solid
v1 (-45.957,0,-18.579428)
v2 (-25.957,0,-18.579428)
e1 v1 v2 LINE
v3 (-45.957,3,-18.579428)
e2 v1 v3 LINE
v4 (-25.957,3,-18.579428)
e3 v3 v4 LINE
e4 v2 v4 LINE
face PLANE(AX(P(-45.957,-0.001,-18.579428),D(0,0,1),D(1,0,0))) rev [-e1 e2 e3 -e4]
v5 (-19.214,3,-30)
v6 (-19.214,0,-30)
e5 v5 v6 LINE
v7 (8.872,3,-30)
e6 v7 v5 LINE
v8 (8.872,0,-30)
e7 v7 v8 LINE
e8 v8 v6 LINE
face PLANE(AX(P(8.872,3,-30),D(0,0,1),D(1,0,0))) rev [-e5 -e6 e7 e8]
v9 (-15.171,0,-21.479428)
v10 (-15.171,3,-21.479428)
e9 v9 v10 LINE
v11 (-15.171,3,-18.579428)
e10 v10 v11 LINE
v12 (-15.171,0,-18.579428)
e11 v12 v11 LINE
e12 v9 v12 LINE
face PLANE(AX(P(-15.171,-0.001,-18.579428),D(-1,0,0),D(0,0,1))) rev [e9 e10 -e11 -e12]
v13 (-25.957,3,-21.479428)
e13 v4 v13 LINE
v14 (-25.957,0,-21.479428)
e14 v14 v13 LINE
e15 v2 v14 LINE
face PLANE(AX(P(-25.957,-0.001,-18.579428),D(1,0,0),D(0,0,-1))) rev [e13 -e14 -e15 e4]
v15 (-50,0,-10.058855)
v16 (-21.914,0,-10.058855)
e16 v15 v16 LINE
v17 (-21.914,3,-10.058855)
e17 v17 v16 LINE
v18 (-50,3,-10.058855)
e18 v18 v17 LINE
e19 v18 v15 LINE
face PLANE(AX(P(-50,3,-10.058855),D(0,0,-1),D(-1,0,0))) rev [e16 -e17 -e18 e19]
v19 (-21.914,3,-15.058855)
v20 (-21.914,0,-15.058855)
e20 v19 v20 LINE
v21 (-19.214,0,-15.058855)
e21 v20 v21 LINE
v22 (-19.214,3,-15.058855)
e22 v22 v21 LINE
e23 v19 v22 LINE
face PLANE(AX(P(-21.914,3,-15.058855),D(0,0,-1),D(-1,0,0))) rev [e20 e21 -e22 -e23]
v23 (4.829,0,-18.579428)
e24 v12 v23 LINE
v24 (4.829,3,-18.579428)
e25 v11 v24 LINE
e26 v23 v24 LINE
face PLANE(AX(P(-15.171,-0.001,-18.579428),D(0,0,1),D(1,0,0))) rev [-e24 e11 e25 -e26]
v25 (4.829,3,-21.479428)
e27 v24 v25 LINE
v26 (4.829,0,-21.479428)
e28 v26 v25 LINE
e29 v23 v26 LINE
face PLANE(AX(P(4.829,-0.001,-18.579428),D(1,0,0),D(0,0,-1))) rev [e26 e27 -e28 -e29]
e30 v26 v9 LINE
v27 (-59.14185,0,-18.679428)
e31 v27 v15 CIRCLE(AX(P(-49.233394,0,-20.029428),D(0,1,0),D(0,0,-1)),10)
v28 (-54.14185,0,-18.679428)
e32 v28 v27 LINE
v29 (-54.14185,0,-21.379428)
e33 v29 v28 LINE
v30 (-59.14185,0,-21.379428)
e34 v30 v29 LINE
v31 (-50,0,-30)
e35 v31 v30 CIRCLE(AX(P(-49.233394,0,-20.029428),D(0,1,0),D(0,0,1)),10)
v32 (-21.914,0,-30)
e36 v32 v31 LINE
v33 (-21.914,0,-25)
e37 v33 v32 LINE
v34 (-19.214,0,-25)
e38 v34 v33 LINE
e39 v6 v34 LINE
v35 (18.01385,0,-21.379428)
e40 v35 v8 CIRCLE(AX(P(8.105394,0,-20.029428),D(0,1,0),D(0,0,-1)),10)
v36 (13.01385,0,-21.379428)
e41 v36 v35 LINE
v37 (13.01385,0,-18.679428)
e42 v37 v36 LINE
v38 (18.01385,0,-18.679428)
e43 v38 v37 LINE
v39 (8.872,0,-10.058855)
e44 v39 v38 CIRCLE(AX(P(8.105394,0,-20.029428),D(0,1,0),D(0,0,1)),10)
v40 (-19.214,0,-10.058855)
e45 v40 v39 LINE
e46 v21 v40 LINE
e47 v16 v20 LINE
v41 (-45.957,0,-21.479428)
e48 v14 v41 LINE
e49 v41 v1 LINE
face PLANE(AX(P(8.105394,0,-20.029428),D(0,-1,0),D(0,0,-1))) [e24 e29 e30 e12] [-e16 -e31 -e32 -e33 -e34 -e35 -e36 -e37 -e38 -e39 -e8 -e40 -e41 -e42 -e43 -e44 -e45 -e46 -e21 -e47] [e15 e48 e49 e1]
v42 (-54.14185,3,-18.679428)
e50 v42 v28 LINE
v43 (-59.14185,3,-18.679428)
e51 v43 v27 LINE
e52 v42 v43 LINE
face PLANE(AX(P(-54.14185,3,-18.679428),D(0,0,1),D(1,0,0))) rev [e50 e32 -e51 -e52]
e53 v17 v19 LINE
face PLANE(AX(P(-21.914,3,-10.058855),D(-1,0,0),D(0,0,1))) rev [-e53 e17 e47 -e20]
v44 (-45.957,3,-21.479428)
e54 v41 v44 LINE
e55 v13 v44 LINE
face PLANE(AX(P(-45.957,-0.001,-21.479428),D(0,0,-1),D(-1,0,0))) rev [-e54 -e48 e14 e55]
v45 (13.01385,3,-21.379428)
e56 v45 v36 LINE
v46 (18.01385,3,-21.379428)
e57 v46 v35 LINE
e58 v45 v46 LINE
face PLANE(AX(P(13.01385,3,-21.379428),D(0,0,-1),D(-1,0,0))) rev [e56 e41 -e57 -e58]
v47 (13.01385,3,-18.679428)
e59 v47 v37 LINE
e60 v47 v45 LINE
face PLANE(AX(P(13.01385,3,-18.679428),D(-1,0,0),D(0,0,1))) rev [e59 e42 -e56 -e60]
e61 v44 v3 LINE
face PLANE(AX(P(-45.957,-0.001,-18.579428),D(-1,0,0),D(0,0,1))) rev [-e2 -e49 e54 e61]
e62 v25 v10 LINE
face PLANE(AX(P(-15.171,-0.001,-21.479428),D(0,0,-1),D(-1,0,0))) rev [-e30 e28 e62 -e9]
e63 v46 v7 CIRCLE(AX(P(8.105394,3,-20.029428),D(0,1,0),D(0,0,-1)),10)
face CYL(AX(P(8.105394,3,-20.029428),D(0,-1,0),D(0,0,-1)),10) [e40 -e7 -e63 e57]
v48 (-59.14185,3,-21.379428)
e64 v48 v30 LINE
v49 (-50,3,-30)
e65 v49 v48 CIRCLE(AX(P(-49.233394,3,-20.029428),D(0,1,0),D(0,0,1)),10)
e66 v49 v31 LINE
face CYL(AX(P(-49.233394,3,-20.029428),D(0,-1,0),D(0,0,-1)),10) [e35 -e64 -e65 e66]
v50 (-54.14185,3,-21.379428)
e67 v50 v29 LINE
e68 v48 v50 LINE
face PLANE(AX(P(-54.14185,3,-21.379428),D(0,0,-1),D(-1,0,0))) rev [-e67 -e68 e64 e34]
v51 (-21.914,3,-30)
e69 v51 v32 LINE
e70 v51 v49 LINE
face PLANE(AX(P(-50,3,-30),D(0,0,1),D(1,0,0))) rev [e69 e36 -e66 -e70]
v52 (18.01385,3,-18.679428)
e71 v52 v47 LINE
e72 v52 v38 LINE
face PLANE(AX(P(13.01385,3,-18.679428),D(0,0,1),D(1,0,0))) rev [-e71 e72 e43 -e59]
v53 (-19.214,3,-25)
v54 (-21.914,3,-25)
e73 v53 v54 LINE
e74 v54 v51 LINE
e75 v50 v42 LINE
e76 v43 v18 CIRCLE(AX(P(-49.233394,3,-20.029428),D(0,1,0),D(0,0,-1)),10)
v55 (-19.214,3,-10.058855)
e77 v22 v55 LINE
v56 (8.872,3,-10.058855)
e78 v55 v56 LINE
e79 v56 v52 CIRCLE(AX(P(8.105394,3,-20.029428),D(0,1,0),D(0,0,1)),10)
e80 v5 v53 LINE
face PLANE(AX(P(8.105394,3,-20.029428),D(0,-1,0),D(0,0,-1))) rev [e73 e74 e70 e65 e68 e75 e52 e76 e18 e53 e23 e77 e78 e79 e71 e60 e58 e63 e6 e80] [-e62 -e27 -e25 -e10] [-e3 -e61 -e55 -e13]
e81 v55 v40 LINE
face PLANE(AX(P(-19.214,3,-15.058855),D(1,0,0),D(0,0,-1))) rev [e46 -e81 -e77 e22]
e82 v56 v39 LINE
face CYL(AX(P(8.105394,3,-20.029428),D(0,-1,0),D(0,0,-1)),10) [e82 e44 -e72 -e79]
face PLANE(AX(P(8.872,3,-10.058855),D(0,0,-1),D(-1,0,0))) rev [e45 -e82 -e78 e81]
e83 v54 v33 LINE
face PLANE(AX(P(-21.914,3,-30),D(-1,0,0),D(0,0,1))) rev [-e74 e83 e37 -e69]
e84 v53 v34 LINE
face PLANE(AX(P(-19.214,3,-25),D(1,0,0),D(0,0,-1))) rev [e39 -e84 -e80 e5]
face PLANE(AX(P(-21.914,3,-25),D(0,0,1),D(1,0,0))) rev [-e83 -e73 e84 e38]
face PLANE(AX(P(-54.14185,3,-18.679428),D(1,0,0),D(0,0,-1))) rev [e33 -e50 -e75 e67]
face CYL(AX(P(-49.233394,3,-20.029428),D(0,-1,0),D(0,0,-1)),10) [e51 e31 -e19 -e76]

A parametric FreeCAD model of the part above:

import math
import FreeCAD as App
import Part
import Sketcher

doc = App.newDocument("Part")
body = doc.addObject("PartDesign::Body", "Body")

# Sketch on XZ plane
sketch1 = body.newObject("Sketcher::SketchObject", "Sketch")
sketch1.AttachmentSupport = (doc.getObject("XZ_Plane"), [""])
sketch1.MapMode = "FlatFace"
sketch1.addGeometry([
    Part.LineSegment(App.Vector(-21.9, -30, 0), App.Vector(-50, -30, 0)),  # 0
    Part.ArcOfCircle(Part.Circle(App.Vector(-49.2, -20, 0), App.Vector(0, 0, 1), 10), math.radians(-172), math.radians(-94)),  # 1
    Part.LineSegment(App.Vector(-59.1, -21.4, 0), App.Vector(-54.1, -21.4, 0)),  # 2
    Part.LineSegment(App.Vector(-54.1, -21.4, 0), App.Vector(-54.1, -18.7, 0)),  # 3
    Part.LineSegment(App.Vector(-54.1, -18.7, 0), App.Vector(-59.1, -18.7, 0)),  # 4
    Part.ArcOfCircle(Part.Circle(App.Vector(-49.2, -20, 0), App.Vector(0, 0, 1), 10), math.radians(94), math.radians(172)),  # 5
    Part.LineSegment(App.Vector(-50, -10.1, 0), App.Vector(-21.9, -10.1, 0)),  # 6
    Part.LineSegment(App.Vector(-21.9, -10.1, 0), App.Vector(-21.9, -15.1, 0)),  # 7
    Part.LineSegment(App.Vector(-21.9, -15.1, 0), App.Vector(-19.2, -15.1, 0)),  # 8
    Part.LineSegment(App.Vector(-19.2, -15.1, 0), App.Vector(-19.2, -10.1, 0)),  # 9
    Part.LineSegment(App.Vector(-19.2, -10.1, 0), App.Vector(8.9, -10.1, 0)),  # 10
    Part.ArcOfCircle(Part.Circle(App.Vector(8.1, -20, 0), App.Vector(0, 0, 1), 10), math.radians(8), math.radians(86)),  # 11
    Part.LineSegment(App.Vector(18, -18.7, 0), App.Vector(13, -18.7, 0)),  # 12
    Part.LineSegment(App.Vector(13, -18.7, 0), App.Vector(13, -21.4, 0)),  # 13
    Part.LineSegment(App.Vector(13, -21.4, 0), App.Vector(18, -21.4, 0)),  # 14
    Part.ArcOfCircle(Part.Circle(App.Vector(8.1, -20, 0), App.Vector(0, 0, 1), 10), math.radians(-86), math.radians(-8)),  # 15
    Part.LineSegment(App.Vector(8.9, -30, 0), App.Vector(-19.2, -30, 0)),  # 16
    Part.LineSegment(App.Vector(-19.2, -30, 0), App.Vector(-19.2, -25, 0)),  # 17
    Part.LineSegment(App.Vector(-19.2, -25, 0), App.Vector(-21.9, -25, 0)),  # 18
    Part.LineSegment(App.Vector(-21.9, -25, 0), App.Vector(-21.9, -30, 0)),  # 19
], False)
sketch1.addConstraint([
    Sketcher.Constraint("Coincident", 0, 2, 1, 2),
    Sketcher.Constraint("Coincident", 1, 1, 2, 1),
    Sketcher.Constraint("Coincident", 2, 2, 3, 1),
    Sketcher.Constraint("Coincident", 3, 2, 4, 1),
    Sketcher.Constraint("Coincident", 4, 2, 5, 2),
    Sketcher.Constraint("Coincident", 5, 1, 6, 1),
    Sketcher.Constraint("Coincident", 6, 2, 7, 1),
    Sketcher.Constraint("Coincident", 7, 2, 8, 1),
    Sketcher.Constraint("Coincident", 8, 2, 9, 1),
    Sketcher.Constraint("Coincident", 9, 2, 10, 1),
    Sketcher.Constraint("Coincident", 10, 2, 11, 2),
    Sketcher.Constraint("Coincident", 11, 1, 12, 1),
    Sketcher.Constraint("Coincident", 12, 2, 13, 1),
    Sketcher.Constraint("Coincident", 13, 2, 14, 1),
    Sketcher.Constraint("Coincident", 14, 2, 15, 2),
    Sketcher.Constraint("Coincident", 15, 1, 16, 1),
    Sketcher.Constraint("Coincident", 16, 2, 17, 1),
    Sketcher.Constraint("Coincident", 17, 2, 18, 1),
    Sketcher.Constraint("Coincident", 18, 2, 19, 1),
    Sketcher.Constraint("Coincident", 19, 2, 0, 1),
    Sketcher.Constraint("Horizontal", 0),
    Sketcher.Constraint("Horizontal", 2),
    Sketcher.Constraint("Vertical", 3),
    Sketcher.Constraint("Horizontal", 4),
    Sketcher.Constraint("Horizontal", 6),
    Sketcher.Constraint("Vertical", 7),
    Sketcher.Constraint("Horizontal", 8),
    Sketcher.Constraint("Vertical", 9),
    Sketcher.Constraint("Horizontal", 10),
    Sketcher.Constraint("Horizontal", 12),
    Sketcher.Constraint("Vertical", 13),
    Sketcher.Constraint("Horizontal", 14),
    Sketcher.Constraint("Horizontal", 16),
    Sketcher.Constraint("Vertical", 17),
    Sketcher.Constraint("Horizontal", 18),
    Sketcher.Constraint("Vertical", 19),
    Sketcher.Constraint("Coincident", 5, 3, 1, 3),
    Sketcher.Constraint("Coincident", 15, 3, 11, 3),
    Sketcher.Constraint("Equal", 1, 5),
    Sketcher.Constraint("Equal", 5, 11),
    Sketcher.Constraint("Equal", 11, 15),
    Sketcher.Constraint("Horizontal", 5, 3, 11, 3),
    Sketcher.Constraint("Horizontal", 6, 2, 9, 2),
    Sketcher.Constraint("Horizontal", 4, 2, 11, 1),
    Sketcher.Constraint("Horizontal", 2, 2, 13, 2),
    Sketcher.Constraint("Horizontal", 0, 2, 15, 1),
    Sketcher.Constraint("Vertical", 1, 1, 4, 2),
    Sketcher.Constraint("Vertical", 0, 2, 5, 1),
    Sketcher.Constraint("Vertical", 9, 2, 16, 2),
    Sketcher.Constraint("Vertical", 7, 2, 18, 2),
    Sketcher.Constraint("Equal", 6, 10),
    Sketcher.Constraint("Equal", 4, 12),
    Sketcher.Constraint("Equal", 18, 3),
    Sketcher.Constraint("Equal", 14, 7),
    Sketcher.Constraint("Equal", 9, 17),
    Sketcher.Constraint("Radius", 1, 10.0),
    Sketcher.Constraint("DistanceX", 2, 1, 2, 2, 5.0),
    Sketcher.Constraint("DistanceX", 8, 1, 8, 2, 2.7),
    Sketcher.Constraint("DistanceX", 0, 2, -1, 1, 50.0),
    Sketcher.Constraint("DistanceY", 0, 2, -1, 1, 30.0),
    Sketcher.Constraint("DistanceX", 0, 2, 0, 1, 28.086),
    Sketcher.Constraint("DistanceX", 1, 1, -1, 1, 59.14185),
])
pad1 = body.newObject("PartDesign::Pad", "Pad")
pad1.Profile = sketch1
pad1.Length = 3
pad1.Reversed = True

# Sketch on XZ plane
sketch2 = body.newObject("Sketcher::SketchObject", "Sketch001")
sketch2.AttachmentSupport = (doc.getObject("XZ_Plane"), [""])
sketch2.MapMode = "FlatFace"
sketch2.AttachmentOffset = App.Placement(App.Vector(0, 0, -3), App.Rotation())
sketch2.addGeometry([
    Part.LineSegment(App.Vector(-46, -21.5, 0), App.Vector(-46, -18.6, 0)),
    Part.LineSegment(App.Vector(-46, -18.6, 0), App.Vector(-26, -18.6, 0)),
    Part.LineSegment(App.Vector(-26, -18.6, 0), App.Vector(-26, -21.5, 0)),
    Part.LineSegment(App.Vector(-26, -21.5, 0), App.Vector(-46, -21.5, 0)),
], False)
sketch2.addConstraint([
    Sketcher.Constraint("Coincident", 0, 2, 1, 1),
    Sketcher.Constraint("Coincident", 1, 2, 2, 1),
    Sketcher.Constraint("Coincident", 2, 2, 3, 1),
    Sketcher.Constraint("Coincident", 3, 2, 0, 1),
    Sketcher.Constraint("Vertical", 0),
    Sketcher.Constraint("Horizontal", 1),
    Sketcher.Constraint("Vertical", 2),
    Sketcher.Constraint("Horizontal", 3),
    Sketcher.Constraint("DistanceX", 1, 1, 1, 2, 20.0),
    Sketcher.Constraint("DistanceY", 0, 1, 0, 2, 2.9),
    Sketcher.Constraint("DistanceX", 0, 2, -1, 1, 45.957),
    Sketcher.Constraint("DistanceY", 0, 2, -1, 1, 18.579428),
])
pocket1 = body.newObject("PartDesign::Pocket", "Pocket")
pocket1.Profile = sketch2
pocket1.Type = "UpToFirst"
pocket1.Reversed = True

# Sketch on XZ plane
sketch3 = body.newObject("Sketcher::SketchObject", "Sketch002")
sketch3.AttachmentSupport = (doc.getObject("XZ_Plane"), [""])
sketch3.MapMode = "FlatFace"
sketch3.AttachmentOffset = App.Placement(App.Vector(0, 0, -3), App.Rotation())
sketch3.addGeometry([
    Part.LineSegment(App.Vector(-15.2, -21.5, 0), App.Vector(-15.2, -18.6, 0)),
    Part.LineSegment(App.Vector(-15.2, -18.6, 0), App.Vector(4.8, -18.6, 0)),
    Part.LineSegment(App.Vector(4.8, -18.6, 0), App.Vector(4.8, -21.5, 0)),
    Part.LineSegment(App.Vector(4.8, -21.5, 0), App.Vector(-15.2, -21.5, 0)),
], False)
sketch3.addConstraint([
    Sketcher.Constraint("Coincident", 0, 2, 1, 1),
    Sketcher.Constraint("Coincident", 1, 2, 2, 1),
    Sketcher.Constraint("Coincident", 2, 2, 3, 1),
    Sketcher.Constraint("Coincident", 3, 2, 0, 1),
    Sketcher.Constraint("Vertical", 0),
    Sketcher.Constraint("Horizontal", 1),
    Sketcher.Constraint("Vertical", 2),
    Sketcher.Constraint("Horizontal", 3),
    Sketcher.Constraint("DistanceX", 1, 1, 1, 2, 20.0),
    Sketcher.Constraint("DistanceY", 0, 1, 0, 2, 2.9),
    Sketcher.Constraint("DistanceX", 0, 2, -1, 1, 15.171),
    Sketcher.Constraint("DistanceY", 0, 2, -1, 1, 18.579428),
])
pocket2 = body.newObject("PartDesign::Pocket", "Pocket001")
pocket2.Profile = sketch3
pocket2.Type = "UpToFirst"
pocket2.Reversed = True

doc.recompute()
